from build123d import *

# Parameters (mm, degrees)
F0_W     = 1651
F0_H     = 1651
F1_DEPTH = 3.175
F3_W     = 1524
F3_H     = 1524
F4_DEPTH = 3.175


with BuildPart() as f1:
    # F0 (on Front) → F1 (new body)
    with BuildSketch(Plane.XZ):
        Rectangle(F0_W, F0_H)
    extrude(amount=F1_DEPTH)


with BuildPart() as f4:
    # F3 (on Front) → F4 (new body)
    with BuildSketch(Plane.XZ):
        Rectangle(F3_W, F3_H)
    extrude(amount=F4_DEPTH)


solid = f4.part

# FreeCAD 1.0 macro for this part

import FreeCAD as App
import Part
import Sketcher
Q = App.Units.Quantity

doc = App.newDocument("Part")
body = doc.addObject("PartDesign::Body", "Body")

# Sketch on XZ plane
sketch1 = body.newObject("Sketcher::SketchObject", "Sketch")
sketch1.AttachmentSupport = (doc.getObject("XZ_Plane"), [""])
sketch1.MapMode = "FlatFace"
sketch1.addGeometry([
    Part.LineSegment(App.Vector(-826, 826, 0), App.Vector(-826, -826, 0)),
    Part.LineSegment(App.Vector(-826, -826, 0), App.Vector(826, -826, 0)),
    Part.LineSegment(App.Vector(826, -826, 0), App.Vector(826, 826, 0)),
    Part.LineSegment(App.Vector(826, 826, 0), App.Vector(-826, 826, 0)),
], False)
sketch1.addConstraint([
    Sketcher.Constraint("Coincident", 0, 2, 1, 1),
    Sketcher.Constraint("Coincident", 1, 2, 2, 1),
    Sketcher.Constraint("Coincident", 2, 2, 3, 1),
    Sketcher.Constraint("Coincident", 3, 2, 0, 1),
    Sketcher.Constraint("Vertical", 0),
    Sketcher.Constraint("Horizontal", 1),
    Sketcher.Constraint("Vertical", 2),
    Sketcher.Constraint("Horizontal", 3),
    Sketcher.Constraint("Symmetric", 0, 2, 2, 2, -1, 1),
    Sketcher.Constraint("Equal", 3, 0),
    Sketcher.Constraint("DistanceX", 1, 1, 1, 2, Q("65 in")),
])
pad1 = body.newObject("PartDesign::Pad", "Pad")
pad1.Profile = sketch1
pad1.Length = Q("0.125 in")
body2 = doc.addObject("PartDesign::Body", "Body001")

# Sketch on XZ plane
sketch2 = body2.newObject("Sketcher::SketchObject", "Sketch001")
sketch2.AttachmentSupport = (doc.getObject("XZ_Plane001"), [""])
sketch2.MapMode = "FlatFace"
sketch2.addGeometry([
    Part.LineSegment(App.Vector(-762, 762, 0), App.Vector(-762, -762, 0)),
    Part.LineSegment(App.Vector(-762, -762, 0), App.Vector(762, -762, 0)),
    Part.LineSegment(App.Vector(762, -762, 0), App.Vector(762, 762, 0)),
    Part.LineSegment(App.Vector(762, 762, 0), App.Vector(-762, 762, 0)),
], False)
sketch2.addConstraint([
    Sketcher.Constraint("Coincident", 0, 2, 1, 1),
    Sketcher.Constraint("Coincident", 1, 2, 2, 1),
    Sketcher.Constraint("Coincident", 2, 2, 3, 1),
    Sketcher.Constraint("Coincident", 3, 2, 0, 1),
    Sketcher.Constraint("Vertical", 0),
    Sketcher.Constraint("Horizontal", 1),
    Sketcher.Constraint("Vertical", 2),
    Sketcher.Constraint("Horizontal", 3),
    Sketcher.Constraint("Symmetric", 0, 2, 2, 2, -1, 1),
    Sketcher.Constraint("Equal", 3, 0),
    Sketcher.Constraint("DistanceX", 1, 1, 1, 2, Q("60 in")),
])
pad2 = body2.newObject("PartDesign::Pad", "Pad001")
pad2.Profile = sketch2
pad2.Length = Q("0.125 in")
body.Visibility = False

doc.recompute()
